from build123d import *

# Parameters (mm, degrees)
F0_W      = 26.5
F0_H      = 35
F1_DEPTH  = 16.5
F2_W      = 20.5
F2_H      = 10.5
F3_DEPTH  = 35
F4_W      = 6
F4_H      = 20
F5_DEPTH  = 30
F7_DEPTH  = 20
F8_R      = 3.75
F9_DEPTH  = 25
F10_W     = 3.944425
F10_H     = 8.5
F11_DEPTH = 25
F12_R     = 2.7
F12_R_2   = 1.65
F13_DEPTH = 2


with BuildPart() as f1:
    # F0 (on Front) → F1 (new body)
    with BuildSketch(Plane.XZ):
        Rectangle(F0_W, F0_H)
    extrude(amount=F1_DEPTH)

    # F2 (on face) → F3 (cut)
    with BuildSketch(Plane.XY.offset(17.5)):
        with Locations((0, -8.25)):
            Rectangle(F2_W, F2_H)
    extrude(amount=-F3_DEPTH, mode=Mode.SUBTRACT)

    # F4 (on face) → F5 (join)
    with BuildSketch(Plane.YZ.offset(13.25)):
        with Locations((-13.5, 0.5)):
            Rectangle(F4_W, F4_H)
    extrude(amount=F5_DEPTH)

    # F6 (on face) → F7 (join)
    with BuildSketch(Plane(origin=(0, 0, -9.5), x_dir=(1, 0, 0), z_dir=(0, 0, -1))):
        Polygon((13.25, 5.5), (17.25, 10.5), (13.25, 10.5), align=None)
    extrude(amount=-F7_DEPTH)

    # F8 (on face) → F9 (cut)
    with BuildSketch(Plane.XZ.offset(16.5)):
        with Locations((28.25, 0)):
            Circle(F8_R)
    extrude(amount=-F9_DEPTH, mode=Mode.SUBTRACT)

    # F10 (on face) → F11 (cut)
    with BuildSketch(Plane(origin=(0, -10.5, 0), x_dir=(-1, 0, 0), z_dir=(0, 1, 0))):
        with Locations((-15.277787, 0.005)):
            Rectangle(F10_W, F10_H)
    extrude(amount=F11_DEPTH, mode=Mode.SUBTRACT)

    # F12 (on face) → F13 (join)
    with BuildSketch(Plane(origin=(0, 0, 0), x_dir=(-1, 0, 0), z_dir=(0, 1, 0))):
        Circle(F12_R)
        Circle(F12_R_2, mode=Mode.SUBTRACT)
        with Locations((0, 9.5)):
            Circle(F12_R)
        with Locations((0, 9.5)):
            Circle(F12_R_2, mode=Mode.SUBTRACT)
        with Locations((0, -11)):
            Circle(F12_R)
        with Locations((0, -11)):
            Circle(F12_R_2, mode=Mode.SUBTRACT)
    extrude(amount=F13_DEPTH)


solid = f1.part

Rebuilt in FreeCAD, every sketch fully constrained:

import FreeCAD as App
import Part
import Sketcher
Q = App.Units.Quantity

doc = App.newDocument("Part")
body = doc.addObject("PartDesign::Body", "Body")

# Sketch on XZ plane
sketch1 = body.newObject("Sketcher::SketchObject", "Sketch")
sketch1.AttachmentSupport = (doc.getObject("XZ_Plane"), [""])
sketch1.MapMode = "FlatFace"
sketch1.addGeometry(Part.LineSegment(App.Vector(-13.25, 17.5, 0), App.Vector(-13.25, -17.5, 0)), False)
sketch1.addGeometry(Part.LineSegment(App.Vector(-13.25, -17.5, 0), App.Vector(13.25, -17.5, 0)), False)
sketch1.addGeometry(Part.LineSegment(App.Vector(13.25, -17.5, 0), App.Vector(13.25, 17.5, 0)), False)
sketch1.addGeometry(Part.LineSegment(App.Vector(13.25, 17.5, 0), App.Vector(-13.25, 17.5, 0)), False)
sketch1.addConstraint(Sketcher.Constraint("Coincident", 0, 2, 1, 1))
sketch1.addConstraint(Sketcher.Constraint("Coincident", 1, 2, 2, 1))
sketch1.addConstraint(Sketcher.Constraint("Coincident", 2, 2, 3, 1))
sketch1.addConstraint(Sketcher.Constraint("Coincident", 3, 2, 0, 1))
sketch1.addConstraint(Sketcher.Constraint("Vertical", 0))
sketch1.addConstraint(Sketcher.Constraint("Horizontal", 1))
sketch1.addConstraint(Sketcher.Constraint("Vertical", 2))
sketch1.addConstraint(Sketcher.Constraint("Horizontal", 3))
sketch1.addConstraint(Sketcher.Constraint("Symmetric", 0, 2, 2, 2, -1, 1))
sketch1.addConstraint(Sketcher.Constraint("DistanceY", 0, 2, 0, 1, Q("35 mm")))
sketch1.addConstraint(Sketcher.Constraint("DistanceX", 1, 1, 1, 2, Q("26.5 mm")))
pad1 = body.newObject("PartDesign::Pad", "Pad")
pad1.Profile = sketch1
pad1.Length = 16.5

# Sketch on XY plane
sketch2 = body.newObject("Sketcher::SketchObject", "Sketch001")
sketch2.AttachmentSupport = (doc.getObject("XY_Plane"), [""])
sketch2.MapMode = "FlatFace"
sketch2.AttachmentOffset = App.Placement(App.Vector(0, 0, 17.5), App.Rotation())
sketch2.addGeometry(Part.LineSegment(App.Vector(-10.25, -3, 0), App.Vector(-10.25, -13.5, 0)), False)
sketch2.addGeometry(Part.LineSegment(App.Vector(-10.25, -13.5, 0), App.Vector(10.25, -13.5, 0)), False)
sketch2.addGeometry(Part.LineSegment(App.Vector(10.25, -13.5, 0), App.Vector(10.25, -3, 0)), False)
sketch2.addGeometry(Part.LineSegment(App.Vector(10.25, -3, 0), App.Vector(-10.25, -3, 0)), False)
sketch2.addConstraint(Sketcher.Constraint("Coincident", 0, 2, 1, 1))
sketch2.addConstraint(Sketcher.Constraint("Coincident", 1, 2, 2, 1))
sketch2.addConstraint(Sketcher.Constraint("Coincident", 2, 2, 3, 1))
sketch2.addConstraint(Sketcher.Constraint("Coincident", 3, 2, 0, 1))
sketch2.addConstraint(Sketcher.Constraint("Vertical", 0))
sketch2.addConstraint(Sketcher.Constraint("Horizontal", 1))
sketch2.addConstraint(Sketcher.Constraint("Vertical", 2))
sketch2.addConstraint(Sketcher.Constraint("Horizontal", 3))
sketch2.addConstraint(Sketcher.Constraint("DistanceX", 1, 1, 1, 2, Q("20.5 mm")))
sketch2.addConstraint(Sketcher.Constraint("DistanceY", 0, 2, 0, 1, Q("10.5 mm")))
sketch2.addConstraint(Sketcher.Constraint("DistanceY", 2, 2, -1, 1, Q("3 mm")))
sketch2.addConstraint(Sketcher.Constraint("DistanceX", 0, 2, -1, 1, Q("10.25 mm")))
pocket1 = body.newObject("PartDesign::Pocket", "Pocket")
pocket1.Profile = sketch2
pocket1.Length = 35

# Sketch on YZ plane
sketch3 = body.newObject("Sketcher::SketchObject", "Sketch002")
sketch3.AttachmentSupport = (doc.getObject("YZ_Plane"), [""])
sketch3.MapMode = "FlatFace"
sketch3.AttachmentOffset = App.Placement(App.Vector(0, 0, 13.25), App.Rotation())
sketch3.addGeometry(Part.LineSegment(App.Vector(-16.5, 10.5, 0), App.Vector(-16.5, -9.5, 0)), False)
sketch3.addGeometry(Part.LineSegment(App.Vector(-16.5, -9.5, 0), App.Vector(-10.5, -9.5, 0)), False)
sketch3.addGeometry(Part.LineSegment(App.Vector(-10.5, -9.5, 0), App.Vector(-10.5, 10.5, 0)), False)
sketch3.addGeometry(Part.LineSegment(App.Vector(-10.5, 10.5, 0), App.Vector(-16.5, 10.5, 0)), False)
sketch3.addConstraint(Sketcher.Constraint("Coincident", 0, 2, 1, 1))
sketch3.addConstraint(Sketcher.Constraint("Coincident", 1, 2, 2, 1))
sketch3.addConstraint(Sketcher.Constraint("Coincident", 2, 2, 3, 1))
sketch3.addConstraint(Sketcher.Constraint("Coincident", 3, 2, 0, 1))
sketch3.addConstraint(Sketcher.Constraint("Vertical", 0))
sketch3.addConstraint(Sketcher.Constraint("Horizontal", 1))
sketch3.addConstraint(Sketcher.Constraint("Vertical", 2))
sketch3.addConstraint(Sketcher.Constraint("Horizontal", 3))
sketch3.addConstraint(Sketcher.Constraint("DistanceX", 1, 1, 1, 2, Q("6 mm")))
sketch3.addConstraint(Sketcher.Constraint("DistanceY", 0, 2, 0, 1, Q("20 mm")))
sketch3.addConstraint(Sketcher.Constraint("DistanceX", 0, 2, -1, 1, Q("16.5 mm")))
sketch3.addConstraint(Sketcher.Constraint("DistanceY", 0, 2, -1, 1, Q("9.5 mm")))
pad2 = body.newObject("PartDesign::Pad", "Pad001")
pad2.Profile = sketch3
pad2.Length = 30

# Sketch on XY plane
sketch4 = body.newObject("Sketcher::SketchObject", "Sketch003")
sketch4.AttachmentSupport = (doc.getObject("XY_Plane"), [""])
sketch4.MapMode = "FlatFace"
sketch4.AttachmentOffset = App.Placement(App.Vector(0, 0, -9.5), App.Rotation())
sketch4.addGeometry(Part.LineSegment(App.Vector(13.25, -5.5, 0), App.Vector(17.25, -10.5, 0)), False)
sketch4.addGeometry(Part.LineSegment(App.Vector(17.25, -10.5, 0), App.Vector(13.25, -10.5, 0)), False)
sketch4.addGeometry(Part.LineSegment(App.Vector(13.25, -10.5, 0), App.Vector(13.25, -5.5, 0)), False)
sketch4.addConstraint(Sketcher.Constraint("Coincident", 0, 2, 1, 1))
sketch4.addConstraint(Sketcher.Constraint("Coincident", 1, 2, 2, 1))
sketch4.addConstraint(Sketcher.Constraint("Coincident", 2, 2, 0, 1))
sketch4.addConstraint(Sketcher.Constraint("Horizontal", 1))
sketch4.addConstraint(Sketcher.Constraint("Vertical", 2))
sketch4.addConstraint(Sketcher.Constraint("DistanceX", 1, 2, 1, 1, Q("4 mm")))
sketch4.addConstraint(Sketcher.Constraint("DistanceY", 2, 1, 2, 2, Q("5 mm")))
sketch4.addConstraint(Sketcher.Constraint("DistanceY", 0, 2, -1, 1, Q("10.5 mm")))
sketch4.addConstraint(Sketcher.Constraint("DistanceX", -1, 1, 0, 2, Q("17.25 mm")))
pad3 = body.newObject("PartDesign::Pad", "Pad002")
pad3.Profile = sketch4
pad3.Length = 20

# Sketch on XZ plane
sketch5 = body.newObject("Sketcher::SketchObject", "Sketch004")
sketch5.AttachmentSupport = (doc.getObject("XZ_Plane"), [""])
sketch5.MapMode = "FlatFace"
sketch5.AttachmentOffset = App.Placement(App.Vector(0, 0, 16.5), App.Rotation())
sketch5.addGeometry(Part.Circle(App.Vector(28.25, 0, 0), App.Vector(0, 0, 1), 3.75), False)
sketch5.addConstraint(Sketcher.Constraint("PointOnObject", 0, 3, -1))
sketch5.addConstraint(Sketcher.Constraint("Diameter", 0, Q("7.5 mm")))
sketch5.addConstraint(Sketcher.Constraint("DistanceX", -1, 1, 0, 3, Q("28.25 mm")))
pocket2 = body.newObject("PartDesign::Pocket", "Pocket001")
pocket2.Profile = sketch5
pocket2.Length = 25

# Sketch on XZ plane
sketch6 = body.newObject("Sketcher::SketchObject", "Sketch005")
sketch6.AttachmentSupport = (doc.getObject("XZ_Plane"), [""])
sketch6.MapMode = "FlatFace"
sketch6.AttachmentOffset = App.Placement(App.Vector(0, 0, 10.5), App.Rotation())
sketch6.addGeometry(Part.LineSegment(App.Vector(17.25, 4.255, 0), App.Vector(17.25, -4.245, 0)), False)
sketch6.addGeometry(Part.LineSegment(App.Vector(17.25, -4.245, 0), App.Vector(13.305575, -4.245, 0)), False)
sketch6.addGeometry(Part.LineSegment(App.Vector(13.305575, -4.245, 0), App.Vector(13.305575, 4.255, 0)), False)
sketch6.addGeometry(Part.LineSegment(App.Vector(13.305575, 4.255, 0), App.Vector(17.25, 4.255, 0)), False)
sketch6.addConstraint(Sketcher.Constraint("Coincident", 0, 2, 1, 1))
sketch6.addConstraint(Sketcher.Constraint("Coincident", 1, 2, 2, 1))
sketch6.addConstraint(Sketcher.Constraint("Coincident", 2, 2, 3, 1))
sketch6.addConstraint(Sketcher.Constraint("Coincident", 3, 2, 0, 1))
sketch6.addConstraint(Sketcher.Constraint("Vertical", 0))
sketch6.addConstraint(Sketcher.Constraint("Horizontal", 1))
sketch6.addConstraint(Sketcher.Constraint("Vertical", 2))
sketch6.addConstraint(Sketcher.Constraint("Horizontal", 3))
sketch6.addConstraint(Sketcher.Constraint("DistanceY", 0, 2, 0, 1, Q("8.5 mm")))
sketch6.addConstraint(Sketcher.Constraint("DistanceX", -1, 1, 0, 2, Q("17.25 mm")))
sketch6.addConstraint(Sketcher.Constraint("DistanceY", 0, 2, -1, 1, Q("4.245 mm")))
sketch6.addConstraint(Sketcher.Constraint("DistanceX", 1, 2, 1, 1, Q("3.944425 mm")))
pocket3 = body.newObject("PartDesign::Pocket", "Pocket002")
pocket3.Profile = sketch6
pocket3.Length = 25

# Sketch on XZ plane
sketch7 = body.newObject("Sketcher::SketchObject", "Sketch006")
sketch7.AttachmentSupport = (doc.getObject("XZ_Plane"), [""])
sketch7.MapMode = "FlatFace"
sketch7.addGeometry(Part.Circle(App.Vector(0, 0, 0), App.Vector(0, 0, 1), 2.7), False)
sketch7.addGeometry(Part.Circle(App.Vector(0, 0, 0), App.Vector(0, 0, 1), 1.65), False)
sketch7.addGeometry(Part.Circle(App.Vector(0, 9.5, 0), App.Vector(0, 0, 1), 2.7), False)
sketch7.addGeometry(Part.Circle(App.Vector(0, 9.5, 0), App.Vector(0, 0, 1), 1.65), False)
sketch7.addGeometry(Part.Circle(App.Vector(0, -11, 0), App.Vector(0, 0, 1), 2.7), False)
sketch7.addGeometry(Part.Circle(App.Vector(0, -11, 0), App.Vector(0, 0, 1), 1.65), False)
sketch7.addConstraint(Sketcher.Constraint("Coincident", 0, 3, -1, 1))
sketch7.addConstraint(Sketcher.Constraint("Coincident", 1, 3, -1, 1))
sketch7.addConstraint(Sketcher.Constraint("Coincident", 3, 3, 2, 3))
sketch7.addConstraint(Sketcher.Constraint("Coincident", 5, 3, 4, 3))
sketch7.addConstraint(Sketcher.Constraint("Equal", 0, 2))
sketch7.addConstraint(Sketcher.Constraint("Equal", 1, 3))
sketch7.addConstraint(Sketcher.Constraint("Equal", 2, 4))
sketch7.addConstraint(Sketcher.Constraint("Equal", 3, 5))
sketch7.addConstraint(Sketcher.Constraint("PointOnObject", 2, 3, -2))
sketch7.addConstraint(Sketcher.Constraint("PointOnObject", 4, 3, -2))
sketch7.addConstraint(Sketcher.Constraint("Diameter", 0, Q("5.4 mm")))
sketch7.addConstraint(Sketcher.Constraint("Diameter", 1, Q("3.3 mm")))
sketch7.addConstraint(Sketcher.Constraint("DistanceY", 4, 3, -1, 1, Q("11 mm")))
sketch7.addConstraint(Sketcher.Constraint("DistanceY", -1, 1, 2, 3, Q("9.5 mm")))
pad4 = body.newObject("PartDesign::Pad", "Pad003")
pad4.Profile = sketch7
pad4.Length = 2
pad4.Reversed = True

doc.recompute()
